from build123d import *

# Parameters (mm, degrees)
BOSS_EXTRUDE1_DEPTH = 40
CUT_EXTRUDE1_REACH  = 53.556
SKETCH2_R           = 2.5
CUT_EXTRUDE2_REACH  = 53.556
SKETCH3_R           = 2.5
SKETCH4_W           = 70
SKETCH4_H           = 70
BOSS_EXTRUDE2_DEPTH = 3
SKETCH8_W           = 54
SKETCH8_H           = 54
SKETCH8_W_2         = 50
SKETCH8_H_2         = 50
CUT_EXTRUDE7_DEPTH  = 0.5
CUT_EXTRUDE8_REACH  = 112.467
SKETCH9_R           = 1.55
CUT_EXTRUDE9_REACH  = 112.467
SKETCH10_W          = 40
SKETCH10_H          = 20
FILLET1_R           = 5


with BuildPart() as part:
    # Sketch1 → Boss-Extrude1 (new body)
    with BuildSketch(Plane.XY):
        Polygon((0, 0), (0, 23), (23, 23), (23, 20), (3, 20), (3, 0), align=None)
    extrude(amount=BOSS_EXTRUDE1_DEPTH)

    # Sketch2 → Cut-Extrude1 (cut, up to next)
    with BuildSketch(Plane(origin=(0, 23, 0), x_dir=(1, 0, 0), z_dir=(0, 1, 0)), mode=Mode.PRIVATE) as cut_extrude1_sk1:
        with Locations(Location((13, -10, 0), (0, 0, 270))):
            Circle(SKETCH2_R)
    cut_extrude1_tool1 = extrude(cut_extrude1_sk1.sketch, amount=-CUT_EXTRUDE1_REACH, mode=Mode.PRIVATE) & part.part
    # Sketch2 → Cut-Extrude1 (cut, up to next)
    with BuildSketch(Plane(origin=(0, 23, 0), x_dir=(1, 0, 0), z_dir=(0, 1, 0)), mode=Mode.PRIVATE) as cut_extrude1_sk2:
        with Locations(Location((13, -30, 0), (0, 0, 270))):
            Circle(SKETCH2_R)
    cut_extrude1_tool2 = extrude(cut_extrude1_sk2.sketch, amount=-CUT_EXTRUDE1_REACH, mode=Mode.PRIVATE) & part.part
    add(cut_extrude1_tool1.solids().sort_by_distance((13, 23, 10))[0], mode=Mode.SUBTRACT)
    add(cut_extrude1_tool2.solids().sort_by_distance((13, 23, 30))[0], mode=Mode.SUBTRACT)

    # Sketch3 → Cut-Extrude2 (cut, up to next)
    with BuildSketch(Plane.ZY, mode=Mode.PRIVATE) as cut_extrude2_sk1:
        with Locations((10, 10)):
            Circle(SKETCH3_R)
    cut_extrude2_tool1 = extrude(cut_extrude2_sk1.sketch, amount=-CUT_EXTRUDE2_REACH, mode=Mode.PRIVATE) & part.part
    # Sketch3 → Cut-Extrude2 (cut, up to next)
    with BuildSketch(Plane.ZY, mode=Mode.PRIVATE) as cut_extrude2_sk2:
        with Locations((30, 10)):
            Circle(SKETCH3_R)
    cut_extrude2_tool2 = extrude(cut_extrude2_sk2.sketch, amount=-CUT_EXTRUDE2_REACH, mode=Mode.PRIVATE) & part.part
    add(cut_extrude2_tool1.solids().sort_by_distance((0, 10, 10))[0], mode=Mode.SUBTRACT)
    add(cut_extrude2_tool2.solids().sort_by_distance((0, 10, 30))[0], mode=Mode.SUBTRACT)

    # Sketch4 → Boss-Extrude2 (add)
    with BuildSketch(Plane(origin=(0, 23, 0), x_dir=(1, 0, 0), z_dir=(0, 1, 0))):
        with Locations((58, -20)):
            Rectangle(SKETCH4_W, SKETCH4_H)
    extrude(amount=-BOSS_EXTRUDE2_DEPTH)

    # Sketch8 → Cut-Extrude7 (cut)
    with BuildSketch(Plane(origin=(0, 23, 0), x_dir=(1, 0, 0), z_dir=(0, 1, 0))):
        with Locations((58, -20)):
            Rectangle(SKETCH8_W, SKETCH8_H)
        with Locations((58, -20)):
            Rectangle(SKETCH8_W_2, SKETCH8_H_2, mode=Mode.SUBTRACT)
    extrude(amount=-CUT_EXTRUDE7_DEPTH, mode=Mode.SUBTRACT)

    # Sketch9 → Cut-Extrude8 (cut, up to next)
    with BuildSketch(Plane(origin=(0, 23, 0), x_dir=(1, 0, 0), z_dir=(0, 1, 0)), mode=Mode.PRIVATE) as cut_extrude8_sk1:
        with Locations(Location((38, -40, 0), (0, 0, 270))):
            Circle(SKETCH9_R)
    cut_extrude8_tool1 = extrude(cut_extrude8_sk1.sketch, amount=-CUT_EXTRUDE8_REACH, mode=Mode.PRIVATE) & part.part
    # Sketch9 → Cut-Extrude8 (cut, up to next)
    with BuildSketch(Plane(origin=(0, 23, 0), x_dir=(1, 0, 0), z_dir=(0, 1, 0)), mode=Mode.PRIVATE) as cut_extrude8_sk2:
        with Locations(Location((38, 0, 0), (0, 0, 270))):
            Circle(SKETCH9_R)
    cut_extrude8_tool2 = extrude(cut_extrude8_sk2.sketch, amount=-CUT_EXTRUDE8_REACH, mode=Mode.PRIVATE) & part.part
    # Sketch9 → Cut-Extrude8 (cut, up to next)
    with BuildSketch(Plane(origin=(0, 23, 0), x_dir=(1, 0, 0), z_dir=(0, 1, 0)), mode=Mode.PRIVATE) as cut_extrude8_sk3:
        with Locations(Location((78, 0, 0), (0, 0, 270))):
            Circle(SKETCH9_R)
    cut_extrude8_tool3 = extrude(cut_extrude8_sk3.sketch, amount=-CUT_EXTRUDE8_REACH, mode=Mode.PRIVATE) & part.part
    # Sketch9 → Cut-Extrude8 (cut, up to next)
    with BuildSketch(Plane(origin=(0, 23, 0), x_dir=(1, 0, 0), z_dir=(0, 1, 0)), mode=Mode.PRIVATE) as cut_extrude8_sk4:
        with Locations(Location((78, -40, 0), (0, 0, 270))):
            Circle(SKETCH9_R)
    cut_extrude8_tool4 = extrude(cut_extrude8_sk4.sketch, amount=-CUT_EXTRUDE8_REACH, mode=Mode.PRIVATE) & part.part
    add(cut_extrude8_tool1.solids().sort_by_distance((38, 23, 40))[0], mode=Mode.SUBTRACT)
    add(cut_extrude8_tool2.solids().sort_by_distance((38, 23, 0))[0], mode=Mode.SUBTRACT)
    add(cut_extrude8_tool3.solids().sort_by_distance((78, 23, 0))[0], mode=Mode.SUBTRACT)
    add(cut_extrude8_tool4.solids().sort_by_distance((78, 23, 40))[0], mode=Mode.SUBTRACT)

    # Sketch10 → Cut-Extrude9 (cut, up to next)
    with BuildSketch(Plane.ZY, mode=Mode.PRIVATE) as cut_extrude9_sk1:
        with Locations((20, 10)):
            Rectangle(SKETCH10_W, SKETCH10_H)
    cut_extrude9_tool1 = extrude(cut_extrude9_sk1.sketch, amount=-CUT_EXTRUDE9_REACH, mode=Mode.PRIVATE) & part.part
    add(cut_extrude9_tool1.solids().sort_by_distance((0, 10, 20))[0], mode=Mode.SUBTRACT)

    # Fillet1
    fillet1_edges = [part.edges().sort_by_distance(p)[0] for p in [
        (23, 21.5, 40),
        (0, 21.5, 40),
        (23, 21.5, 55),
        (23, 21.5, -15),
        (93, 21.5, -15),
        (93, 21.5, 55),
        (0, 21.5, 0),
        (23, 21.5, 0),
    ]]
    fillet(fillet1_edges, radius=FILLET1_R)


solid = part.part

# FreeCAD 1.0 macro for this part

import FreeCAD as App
import Part
import Sketcher


def edges_at(feature, points):
    """Names of the edges that pass closest to the given points."""
    edges = feature.Shape.Edges
    near = lambda p: min(range(len(edges)), key=lambda i: edges[i].distToShape(Part.Vertex(*p))[0])
    return sorted({f"Edge{near(p) + 1}" for p in points})


def add_polygon(sketch, points):
    """Adds a closed chain of lines whose ends are joined by coincident constraints."""
    first, n = sketch.GeometryCount, len(points)
    for a, b in zip(points, points[1:] + points[:1]):
        sketch.addGeometry(Part.LineSegment(App.Vector(*a, 0), App.Vector(*b, 0)), False)
    for i in range(n):
        sketch.addConstraint(Sketcher.Constraint("Coincident", first + i, 2, first + (i + 1) % n, 1))

doc = App.newDocument("Part")
params = doc.addObject("Spreadsheet::Sheet", "Params")
for row, (alias, value) in enumerate([
    ("sketch1_width", "3 mm"),
    ("sketch1_width2", "20 mm"),
    ("pad1_length", "40 mm"),
    ("sketch2_diameter", "5 mm"),
    ("sketch3_diameter", "5 mm"),
    ("sketch4_diameter", "5 mm"),
    ("sketch5_diameter", "5 mm"),
    ("sketch6_width", "70 mm"),
    ("pad2_length", "3 mm"),
    ("sketch7_width", "54 mm"),
    ("sketch7_width2", "50 mm"),
    ("pocket5_length", "0.5 mm"),
    ("sketch8_diameter", "3.1 mm"),
    ("sketch9_diameter", "3.1 mm"),
    ("sketch10_diameter", "3.1 mm"),
    ("sketch11_diameter", "3.1 mm"),
    ("sketch12_width", "20 mm"),
    ("sketch12_height", "40 mm"),
    ("fillet_radius", "5 mm"),
], start=1):
    params.set(f"A{row}", alias)
    params.set(f"B{row}", "=" + value)
    params.setAlias(f"B{row}", alias)

body = doc.addObject("PartDesign::Body", "Body")

# Sketch on XY plane
sketch1 = body.newObject("Sketcher::SketchObject", "Sketch")
sketch1.AttachmentSupport = (doc.getObject("XY_Plane"), [""])
sketch1.MapMode = "FlatFace"
add_polygon(sketch1, [(0, 23), (0, 0), (3, 0), (3, 20), (23, 20), (23, 23)])  # lines 0-5
sketch1.addConstraint(Sketcher.Constraint("Vertical", 0))
sketch1.addConstraint(Sketcher.Constraint("Horizontal", 1))
sketch1.addConstraint(Sketcher.Constraint("Vertical", 2))
sketch1.addConstraint(Sketcher.Constraint("Horizontal", 3))
sketch1.addConstraint(Sketcher.Constraint("Vertical", 4))
sketch1.addConstraint(Sketcher.Constraint("Horizontal", 5))
sketch1.addConstraint(Sketcher.Constraint("Coincident", 0, 2, -1, 1))
sketch1.addConstraint(Sketcher.Constraint("Equal", 5, 0))
sketch1.addConstraint(Sketcher.Constraint("Equal", 3, 2))
sketch1.addConstraint(Sketcher.Constraint("DistanceX", 1, 1, 1, 2, 3.0))
sketch1.addConstraint(Sketcher.Constraint("DistanceX", 3, 1, 3, 2, 20.0))
sketch1.setExpression("Constraints[15]", "Params.sketch1_width")
sketch1.setExpression("Constraints[16]", "Params.sketch1_width2")
pad1 = body.newObject("PartDesign::Pad", "Pad")
pad1.Profile = sketch1
pad1.setExpression("Length", "Params.pad1_length")

# Sketch on XZ plane
sketch2 = body.newObject("Sketcher::SketchObject", "Sketch001")
sketch2.AttachmentSupport = (doc.getObject("XZ_Plane"), [""])
sketch2.MapMode = "FlatFace"
sketch2.AttachmentOffset = App.Placement(App.Vector(0, 0, -23), App.Rotation())
sketch2.addGeometry(Part.Circle(App.Vector(13, 10, 0), App.Vector(0, 0, 1), 2.5), False)
sketch2.addConstraint(Sketcher.Constraint("Diameter", 0, 5.0))
sketch2.addConstraint(Sketcher.Constraint("DistanceX", -1, 1, 0, 3, 13.0))
sketch2.addConstraint(Sketcher.Constraint("DistanceY", -1, 1, 0, 3, 10.0))
sketch2.setExpression("Constraints[0]", "Params.sketch2_diameter")
pocket1 = body.newObject("PartDesign::Pocket", "Pocket")
pocket1.Profile = sketch2
pocket1.Type = "UpToFirst"
pocket1.Reversed = True

# Sketch on XZ plane
sketch3 = body.newObject("Sketcher::SketchObject", "Sketch002")
sketch3.AttachmentSupport = (doc.getObject("XZ_Plane"), [""])
sketch3.MapMode = "FlatFace"
sketch3.AttachmentOffset = App.Placement(App.Vector(0, 0, -23), App.Rotation())
sketch3.addGeometry(Part.Circle(App.Vector(13, 30, 0), App.Vector(0, 0, 1), 2.5), False)
sketch3.addConstraint(Sketcher.Constraint("Diameter", 0, 5.0))
sketch3.addConstraint(Sketcher.Constraint("DistanceX", -1, 1, 0, 3, 13.0))
sketch3.addConstraint(Sketcher.Constraint("DistanceY", -1, 1, 0, 3, 30.0))
sketch3.setExpression("Constraints[0]", "Params.sketch3_diameter")
pocket2 = body.newObject("PartDesign::Pocket", "Pocket001")
pocket2.Profile = sketch3
pocket2.Type = "UpToFirst"
pocket2.Reversed = True

# Sketch on YZ plane
sketch4 = body.newObject("Sketcher::SketchObject", "Sketch003")
sketch4.AttachmentSupport = (doc.getObject("YZ_Plane"), [""])
sketch4.MapMode = "FlatFace"
sketch4.addGeometry(Part.Circle(App.Vector(10, 10, 0), App.Vector(0, 0, 1), 2.5), False)
sketch4.addConstraint(Sketcher.Constraint("Diameter", 0, 5.0))
sketch4.addConstraint(Sketcher.Constraint("DistanceX", -1, 1, 0, 3, 10.0))
sketch4.addConstraint(Sketcher.Constraint("DistanceY", -1, 1, 0, 3, 10.0))
sketch4.setExpression("Constraints[0]", "Params.sketch4_diameter")
pocket3 = body.newObject("PartDesign::Pocket", "Pocket002")
pocket3.Profile = sketch4
pocket3.Type = "UpToFirst"
pocket3.Reversed = True

# Sketch on YZ plane
sketch5 = body.newObject("Sketcher::SketchObject", "Sketch004")
sketch5.AttachmentSupport = (doc.getObject("YZ_Plane"), [""])
sketch5.MapMode = "FlatFace"
sketch5.addGeometry(Part.Circle(App.Vector(10, 30, 0), App.Vector(0, 0, 1), 2.5), False)
sketch5.addConstraint(Sketcher.Constraint("Diameter", 0, 5.0))
sketch5.addConstraint(Sketcher.Constraint("DistanceX", -1, 1, 0, 3, 10.0))
sketch5.addConstraint(Sketcher.Constraint("DistanceY", -1, 1, 0, 3, 30.0))
sketch5.setExpression("Constraints[0]", "Params.sketch5_diameter")
pocket4 = body.newObject("PartDesign::Pocket", "Pocket003")
pocket4.Profile = sketch5
pocket4.Type = "UpToFirst"
pocket4.Reversed = True

# Sketch on XZ plane
sketch6 = body.newObject("Sketcher::SketchObject", "Sketch005")
sketch6.AttachmentSupport = (doc.getObject("XZ_Plane"), [""])
sketch6.MapMode = "FlatFace"
sketch6.AttachmentOffset = App.Placement(App.Vector(0, 0, -23), App.Rotation())
add_polygon(sketch6, [(23, -15), (23, 55), (93, 55), (93, -15)])  # lines 0-3
sketch6.addConstraint(Sketcher.Constraint("Vertical", 0))
sketch6.addConstraint(Sketcher.Constraint("Horizontal", 1))
sketch6.addConstraint(Sketcher.Constraint("Vertical", 2))
sketch6.addConstraint(Sketcher.Constraint("Horizontal", 3))
sketch6.addConstraint(Sketcher.Constraint("Equal", 3, 0))
sketch6.addConstraint(Sketcher.Constraint("DistanceX", 1, 1, 1, 2, 70.0))
sketch6.addConstraint(Sketcher.Constraint("DistanceX", -1, 1, 0, 2, 23.0))
sketch6.addConstraint(Sketcher.Constraint("DistanceY", -1, 1, 0, 2, 55.0))
sketch6.setExpression("Constraints[9]", "Params.sketch6_width")
pad2 = body.newObject("PartDesign::Pad", "Pad001")
pad2.Profile = sketch6
pad2.setExpression("Length", "Params.pad2_length")

# Sketch on XZ plane
sketch7 = body.newObject("Sketcher::SketchObject", "Sketch006")
sketch7.AttachmentSupport = (doc.getObject("XZ_Plane"), [""])
sketch7.MapMode = "FlatFace"
sketch7.AttachmentOffset = App.Placement(App.Vector(0, 0, -23), App.Rotation())
add_polygon(sketch7, [(31, -7), (31, 47), (85, 47), (85, -7)])  # lines 0-3
add_polygon(sketch7, [(83, 45), (33, 45), (33, -5), (83, -5)])  # lines 4-7
sketch7.addConstraint(Sketcher.Constraint("Vertical", 0))
sketch7.addConstraint(Sketcher.Constraint("Horizontal", 1))
sketch7.addConstraint(Sketcher.Constraint("Vertical", 2))
sketch7.addConstraint(Sketcher.Constraint("Horizontal", 3))
sketch7.addConstraint(Sketcher.Constraint("Horizontal", 4))
sketch7.addConstraint(Sketcher.Constraint("Vertical", 5))
sketch7.addConstraint(Sketcher.Constraint("Horizontal", 6))
sketch7.addConstraint(Sketcher.Constraint("Vertical", 7))
sketch7.addConstraint(Sketcher.Constraint("Equal", 3, 0))
sketch7.addConstraint(Sketcher.Constraint("Equal", 6, 5))
sketch7.addConstraint(Sketcher.Constraint("DistanceX", 1, 1, 1, 2, 54.0))
sketch7.addConstraint(Sketcher.Constraint("DistanceX", 4, 2, 4, 1, 50.0))
sketch7.addConstraint(Sketcher.Constraint("DistanceX", -1, 1, 0, 2, 31.0))
sketch7.addConstraint(Sketcher.Constraint("DistanceY", -1, 1, 0, 2, 47.0))
sketch7.addConstraint(Sketcher.Constraint("DistanceX", -1, 1, 4, 2, 33.0))
sketch7.addConstraint(Sketcher.Constraint("DistanceY", -1, 1, 4, 2, 45.0))
sketch7.setExpression("Constraints[18]", "Params.sketch7_width")
sketch7.setExpression("Constraints[19]", "Params.sketch7_width2")
pocket5 = body.newObject("PartDesign::Pocket", "Pocket004")
pocket5.Profile = sketch7
pocket5.setExpression("Length", "Params.pocket5_length")
pocket5.Reversed = True

# Sketch on XZ plane
sketch8 = body.newObject("Sketcher::SketchObject", "Sketch007")
sketch8.AttachmentSupport = (doc.getObject("XZ_Plane"), [""])
sketch8.MapMode = "FlatFace"
sketch8.AttachmentOffset = App.Placement(App.Vector(0, 0, -23), App.Rotation())
sketch8.addGeometry(Part.Circle(App.Vector(38, 40, 0), App.Vector(0, 0, 1), 1.6), False)
sketch8.addConstraint(Sketcher.Constraint("Diameter", 0, 3.1))
sketch8.addConstraint(Sketcher.Constraint("DistanceX", -1, 1, 0, 3, 38.0))
sketch8.addConstraint(Sketcher.Constraint("DistanceY", -1, 1, 0, 3, 40.0))
sketch8.setExpression("Constraints[0]", "Params.sketch8_diameter")
pocket6 = body.newObject("PartDesign::Pocket", "Pocket005")
pocket6.Profile = sketch8
pocket6.Type = "UpToFirst"
pocket6.Reversed = True

# Sketch on XZ plane
sketch9 = body.newObject("Sketcher::SketchObject", "Sketch008")
sketch9.AttachmentSupport = (doc.getObject("XZ_Plane"), [""])
sketch9.MapMode = "FlatFace"
sketch9.AttachmentOffset = App.Placement(App.Vector(0, 0, -23), App.Rotation())
sketch9.addGeometry(Part.Circle(App.Vector(38, 0, 0), App.Vector(0, 0, 1), 1.6), False)
sketch9.addConstraint(Sketcher.Constraint("PointOnObject", 0, 3, -1))
sketch9.addConstraint(Sketcher.Constraint("Diameter", 0, 3.1))
sketch9.addConstraint(Sketcher.Constraint("DistanceX", -1, 1, 0, 3, 38.0))
sketch9.setExpression("Constraints[1]", "Params.sketch9_diameter")
pocket7 = body.newObject("PartDesign::Pocket", "Pocket006")
pocket7.Profile = sketch9
pocket7.Type = "UpToFirst"
pocket7.Reversed = True

# Sketch on XZ plane
sketch10 = body.newObject("Sketcher::SketchObject", "Sketch009")
sketch10.AttachmentSupport = (doc.getObject("XZ_Plane"), [""])
sketch10.MapMode = "FlatFace"
sketch10.AttachmentOffset = App.Placement(App.Vector(0, 0, -23), App.Rotation())
sketch10.addGeometry(Part.Circle(App.Vector(78, 0, 0), App.Vector(0, 0, 1), 1.6), False)
sketch10.addConstraint(Sketcher.Constraint("PointOnObject", 0, 3, -1))
sketch10.addConstraint(Sketcher.Constraint("Diameter", 0, 3.1))
sketch10.addConstraint(Sketcher.Constraint("DistanceX", -1, 1, 0, 3, 78.0))
sketch10.setExpression("Constraints[1]", "Params.sketch10_diameter")
pocket8 = body.newObject("PartDesign::Pocket", "Pocket007")
pocket8.Profile = sketch10
pocket8.Type = "UpToFirst"
pocket8.Reversed = True

# Sketch on XZ plane
sketch11 = body.newObject("Sketcher::SketchObject", "Sketch010")
sketch11.AttachmentSupport = (doc.getObject("XZ_Plane"), [""])
sketch11.MapMode = "FlatFace"
sketch11.AttachmentOffset = App.Placement(App.Vector(0, 0, -23), App.Rotation())
sketch11.addGeometry(Part.Circle(App.Vector(78, 40, 0), App.Vector(0, 0, 1), 1.6), False)
sketch11.addConstraint(Sketcher.Constraint("Diameter", 0, 3.1))
sketch11.addConstraint(Sketcher.Constraint("DistanceX", -1, 1, 0, 3, 78.0))
sketch11.addConstraint(Sketcher.Constraint("DistanceY", -1, 1, 0, 3, 40.0))
sketch11.setExpression("Constraints[0]", "Params.sketch11_diameter")
pocket9 = body.newObject("PartDesign::Pocket", "Pocket008")
pocket9.Profile = sketch11
pocket9.Type = "UpToFirst"
pocket9.Reversed = True

# Sketch on YZ plane
sketch12 = body.newObject("Sketcher::SketchObject", "Sketch011")
sketch12.AttachmentSupport = (doc.getObject("YZ_Plane"), [""])
sketch12.MapMode = "FlatFace"
add_polygon(sketch12, [(20, 0), (0, 0), (0, 40), (20, 40)])  # lines 0-3
sketch12.addConstraint(Sketcher.Constraint("Horizontal", 0))
sketch12.addConstraint(Sketcher.Constraint("Vertical", 1))
sketch12.addConstraint(Sketcher.Constraint("Horizontal", 2))
sketch12.addConstraint(Sketcher.Constraint("Vertical", 3))
sketch12.addConstraint(Sketcher.Constraint("Coincident", 0, 2, -1, 1))
sketch12.addConstraint(Sketcher.Constraint("DistanceX", 0, 2, 0, 1, 20.0))
sketch12.addConstraint(Sketcher.Constraint("DistanceY", 1, 1, 1, 2, 40.0))
sketch12.setExpression("Constraints[9]", "Params.sketch12_width")
sketch12.setExpression("Constraints[10]", "Params.sketch12_height")
pocket10 = body.newObject("PartDesign::Pocket", "Pocket009")
pocket10.Profile = sketch12
pocket10.Type = "UpToFirst"
pocket10.Reversed = True
doc.recompute()

fillet = body.newObject("PartDesign::Fillet", "Fillet")
fillet.Base = (pocket10, edges_at(pocket10, [
    (23, 21.5, 40),
    (0, 21.5, 40),
    (23, 21.5, 55),
    (23, 21.5, -15),
    (93, 21.5, -15),
    (93, 21.5, 55),
    (0, 21.5, 0),
    (23, 21.5, 0),
]))
fillet.setExpression("Radius", "Params.fillet_radius")

doc.recompute()
